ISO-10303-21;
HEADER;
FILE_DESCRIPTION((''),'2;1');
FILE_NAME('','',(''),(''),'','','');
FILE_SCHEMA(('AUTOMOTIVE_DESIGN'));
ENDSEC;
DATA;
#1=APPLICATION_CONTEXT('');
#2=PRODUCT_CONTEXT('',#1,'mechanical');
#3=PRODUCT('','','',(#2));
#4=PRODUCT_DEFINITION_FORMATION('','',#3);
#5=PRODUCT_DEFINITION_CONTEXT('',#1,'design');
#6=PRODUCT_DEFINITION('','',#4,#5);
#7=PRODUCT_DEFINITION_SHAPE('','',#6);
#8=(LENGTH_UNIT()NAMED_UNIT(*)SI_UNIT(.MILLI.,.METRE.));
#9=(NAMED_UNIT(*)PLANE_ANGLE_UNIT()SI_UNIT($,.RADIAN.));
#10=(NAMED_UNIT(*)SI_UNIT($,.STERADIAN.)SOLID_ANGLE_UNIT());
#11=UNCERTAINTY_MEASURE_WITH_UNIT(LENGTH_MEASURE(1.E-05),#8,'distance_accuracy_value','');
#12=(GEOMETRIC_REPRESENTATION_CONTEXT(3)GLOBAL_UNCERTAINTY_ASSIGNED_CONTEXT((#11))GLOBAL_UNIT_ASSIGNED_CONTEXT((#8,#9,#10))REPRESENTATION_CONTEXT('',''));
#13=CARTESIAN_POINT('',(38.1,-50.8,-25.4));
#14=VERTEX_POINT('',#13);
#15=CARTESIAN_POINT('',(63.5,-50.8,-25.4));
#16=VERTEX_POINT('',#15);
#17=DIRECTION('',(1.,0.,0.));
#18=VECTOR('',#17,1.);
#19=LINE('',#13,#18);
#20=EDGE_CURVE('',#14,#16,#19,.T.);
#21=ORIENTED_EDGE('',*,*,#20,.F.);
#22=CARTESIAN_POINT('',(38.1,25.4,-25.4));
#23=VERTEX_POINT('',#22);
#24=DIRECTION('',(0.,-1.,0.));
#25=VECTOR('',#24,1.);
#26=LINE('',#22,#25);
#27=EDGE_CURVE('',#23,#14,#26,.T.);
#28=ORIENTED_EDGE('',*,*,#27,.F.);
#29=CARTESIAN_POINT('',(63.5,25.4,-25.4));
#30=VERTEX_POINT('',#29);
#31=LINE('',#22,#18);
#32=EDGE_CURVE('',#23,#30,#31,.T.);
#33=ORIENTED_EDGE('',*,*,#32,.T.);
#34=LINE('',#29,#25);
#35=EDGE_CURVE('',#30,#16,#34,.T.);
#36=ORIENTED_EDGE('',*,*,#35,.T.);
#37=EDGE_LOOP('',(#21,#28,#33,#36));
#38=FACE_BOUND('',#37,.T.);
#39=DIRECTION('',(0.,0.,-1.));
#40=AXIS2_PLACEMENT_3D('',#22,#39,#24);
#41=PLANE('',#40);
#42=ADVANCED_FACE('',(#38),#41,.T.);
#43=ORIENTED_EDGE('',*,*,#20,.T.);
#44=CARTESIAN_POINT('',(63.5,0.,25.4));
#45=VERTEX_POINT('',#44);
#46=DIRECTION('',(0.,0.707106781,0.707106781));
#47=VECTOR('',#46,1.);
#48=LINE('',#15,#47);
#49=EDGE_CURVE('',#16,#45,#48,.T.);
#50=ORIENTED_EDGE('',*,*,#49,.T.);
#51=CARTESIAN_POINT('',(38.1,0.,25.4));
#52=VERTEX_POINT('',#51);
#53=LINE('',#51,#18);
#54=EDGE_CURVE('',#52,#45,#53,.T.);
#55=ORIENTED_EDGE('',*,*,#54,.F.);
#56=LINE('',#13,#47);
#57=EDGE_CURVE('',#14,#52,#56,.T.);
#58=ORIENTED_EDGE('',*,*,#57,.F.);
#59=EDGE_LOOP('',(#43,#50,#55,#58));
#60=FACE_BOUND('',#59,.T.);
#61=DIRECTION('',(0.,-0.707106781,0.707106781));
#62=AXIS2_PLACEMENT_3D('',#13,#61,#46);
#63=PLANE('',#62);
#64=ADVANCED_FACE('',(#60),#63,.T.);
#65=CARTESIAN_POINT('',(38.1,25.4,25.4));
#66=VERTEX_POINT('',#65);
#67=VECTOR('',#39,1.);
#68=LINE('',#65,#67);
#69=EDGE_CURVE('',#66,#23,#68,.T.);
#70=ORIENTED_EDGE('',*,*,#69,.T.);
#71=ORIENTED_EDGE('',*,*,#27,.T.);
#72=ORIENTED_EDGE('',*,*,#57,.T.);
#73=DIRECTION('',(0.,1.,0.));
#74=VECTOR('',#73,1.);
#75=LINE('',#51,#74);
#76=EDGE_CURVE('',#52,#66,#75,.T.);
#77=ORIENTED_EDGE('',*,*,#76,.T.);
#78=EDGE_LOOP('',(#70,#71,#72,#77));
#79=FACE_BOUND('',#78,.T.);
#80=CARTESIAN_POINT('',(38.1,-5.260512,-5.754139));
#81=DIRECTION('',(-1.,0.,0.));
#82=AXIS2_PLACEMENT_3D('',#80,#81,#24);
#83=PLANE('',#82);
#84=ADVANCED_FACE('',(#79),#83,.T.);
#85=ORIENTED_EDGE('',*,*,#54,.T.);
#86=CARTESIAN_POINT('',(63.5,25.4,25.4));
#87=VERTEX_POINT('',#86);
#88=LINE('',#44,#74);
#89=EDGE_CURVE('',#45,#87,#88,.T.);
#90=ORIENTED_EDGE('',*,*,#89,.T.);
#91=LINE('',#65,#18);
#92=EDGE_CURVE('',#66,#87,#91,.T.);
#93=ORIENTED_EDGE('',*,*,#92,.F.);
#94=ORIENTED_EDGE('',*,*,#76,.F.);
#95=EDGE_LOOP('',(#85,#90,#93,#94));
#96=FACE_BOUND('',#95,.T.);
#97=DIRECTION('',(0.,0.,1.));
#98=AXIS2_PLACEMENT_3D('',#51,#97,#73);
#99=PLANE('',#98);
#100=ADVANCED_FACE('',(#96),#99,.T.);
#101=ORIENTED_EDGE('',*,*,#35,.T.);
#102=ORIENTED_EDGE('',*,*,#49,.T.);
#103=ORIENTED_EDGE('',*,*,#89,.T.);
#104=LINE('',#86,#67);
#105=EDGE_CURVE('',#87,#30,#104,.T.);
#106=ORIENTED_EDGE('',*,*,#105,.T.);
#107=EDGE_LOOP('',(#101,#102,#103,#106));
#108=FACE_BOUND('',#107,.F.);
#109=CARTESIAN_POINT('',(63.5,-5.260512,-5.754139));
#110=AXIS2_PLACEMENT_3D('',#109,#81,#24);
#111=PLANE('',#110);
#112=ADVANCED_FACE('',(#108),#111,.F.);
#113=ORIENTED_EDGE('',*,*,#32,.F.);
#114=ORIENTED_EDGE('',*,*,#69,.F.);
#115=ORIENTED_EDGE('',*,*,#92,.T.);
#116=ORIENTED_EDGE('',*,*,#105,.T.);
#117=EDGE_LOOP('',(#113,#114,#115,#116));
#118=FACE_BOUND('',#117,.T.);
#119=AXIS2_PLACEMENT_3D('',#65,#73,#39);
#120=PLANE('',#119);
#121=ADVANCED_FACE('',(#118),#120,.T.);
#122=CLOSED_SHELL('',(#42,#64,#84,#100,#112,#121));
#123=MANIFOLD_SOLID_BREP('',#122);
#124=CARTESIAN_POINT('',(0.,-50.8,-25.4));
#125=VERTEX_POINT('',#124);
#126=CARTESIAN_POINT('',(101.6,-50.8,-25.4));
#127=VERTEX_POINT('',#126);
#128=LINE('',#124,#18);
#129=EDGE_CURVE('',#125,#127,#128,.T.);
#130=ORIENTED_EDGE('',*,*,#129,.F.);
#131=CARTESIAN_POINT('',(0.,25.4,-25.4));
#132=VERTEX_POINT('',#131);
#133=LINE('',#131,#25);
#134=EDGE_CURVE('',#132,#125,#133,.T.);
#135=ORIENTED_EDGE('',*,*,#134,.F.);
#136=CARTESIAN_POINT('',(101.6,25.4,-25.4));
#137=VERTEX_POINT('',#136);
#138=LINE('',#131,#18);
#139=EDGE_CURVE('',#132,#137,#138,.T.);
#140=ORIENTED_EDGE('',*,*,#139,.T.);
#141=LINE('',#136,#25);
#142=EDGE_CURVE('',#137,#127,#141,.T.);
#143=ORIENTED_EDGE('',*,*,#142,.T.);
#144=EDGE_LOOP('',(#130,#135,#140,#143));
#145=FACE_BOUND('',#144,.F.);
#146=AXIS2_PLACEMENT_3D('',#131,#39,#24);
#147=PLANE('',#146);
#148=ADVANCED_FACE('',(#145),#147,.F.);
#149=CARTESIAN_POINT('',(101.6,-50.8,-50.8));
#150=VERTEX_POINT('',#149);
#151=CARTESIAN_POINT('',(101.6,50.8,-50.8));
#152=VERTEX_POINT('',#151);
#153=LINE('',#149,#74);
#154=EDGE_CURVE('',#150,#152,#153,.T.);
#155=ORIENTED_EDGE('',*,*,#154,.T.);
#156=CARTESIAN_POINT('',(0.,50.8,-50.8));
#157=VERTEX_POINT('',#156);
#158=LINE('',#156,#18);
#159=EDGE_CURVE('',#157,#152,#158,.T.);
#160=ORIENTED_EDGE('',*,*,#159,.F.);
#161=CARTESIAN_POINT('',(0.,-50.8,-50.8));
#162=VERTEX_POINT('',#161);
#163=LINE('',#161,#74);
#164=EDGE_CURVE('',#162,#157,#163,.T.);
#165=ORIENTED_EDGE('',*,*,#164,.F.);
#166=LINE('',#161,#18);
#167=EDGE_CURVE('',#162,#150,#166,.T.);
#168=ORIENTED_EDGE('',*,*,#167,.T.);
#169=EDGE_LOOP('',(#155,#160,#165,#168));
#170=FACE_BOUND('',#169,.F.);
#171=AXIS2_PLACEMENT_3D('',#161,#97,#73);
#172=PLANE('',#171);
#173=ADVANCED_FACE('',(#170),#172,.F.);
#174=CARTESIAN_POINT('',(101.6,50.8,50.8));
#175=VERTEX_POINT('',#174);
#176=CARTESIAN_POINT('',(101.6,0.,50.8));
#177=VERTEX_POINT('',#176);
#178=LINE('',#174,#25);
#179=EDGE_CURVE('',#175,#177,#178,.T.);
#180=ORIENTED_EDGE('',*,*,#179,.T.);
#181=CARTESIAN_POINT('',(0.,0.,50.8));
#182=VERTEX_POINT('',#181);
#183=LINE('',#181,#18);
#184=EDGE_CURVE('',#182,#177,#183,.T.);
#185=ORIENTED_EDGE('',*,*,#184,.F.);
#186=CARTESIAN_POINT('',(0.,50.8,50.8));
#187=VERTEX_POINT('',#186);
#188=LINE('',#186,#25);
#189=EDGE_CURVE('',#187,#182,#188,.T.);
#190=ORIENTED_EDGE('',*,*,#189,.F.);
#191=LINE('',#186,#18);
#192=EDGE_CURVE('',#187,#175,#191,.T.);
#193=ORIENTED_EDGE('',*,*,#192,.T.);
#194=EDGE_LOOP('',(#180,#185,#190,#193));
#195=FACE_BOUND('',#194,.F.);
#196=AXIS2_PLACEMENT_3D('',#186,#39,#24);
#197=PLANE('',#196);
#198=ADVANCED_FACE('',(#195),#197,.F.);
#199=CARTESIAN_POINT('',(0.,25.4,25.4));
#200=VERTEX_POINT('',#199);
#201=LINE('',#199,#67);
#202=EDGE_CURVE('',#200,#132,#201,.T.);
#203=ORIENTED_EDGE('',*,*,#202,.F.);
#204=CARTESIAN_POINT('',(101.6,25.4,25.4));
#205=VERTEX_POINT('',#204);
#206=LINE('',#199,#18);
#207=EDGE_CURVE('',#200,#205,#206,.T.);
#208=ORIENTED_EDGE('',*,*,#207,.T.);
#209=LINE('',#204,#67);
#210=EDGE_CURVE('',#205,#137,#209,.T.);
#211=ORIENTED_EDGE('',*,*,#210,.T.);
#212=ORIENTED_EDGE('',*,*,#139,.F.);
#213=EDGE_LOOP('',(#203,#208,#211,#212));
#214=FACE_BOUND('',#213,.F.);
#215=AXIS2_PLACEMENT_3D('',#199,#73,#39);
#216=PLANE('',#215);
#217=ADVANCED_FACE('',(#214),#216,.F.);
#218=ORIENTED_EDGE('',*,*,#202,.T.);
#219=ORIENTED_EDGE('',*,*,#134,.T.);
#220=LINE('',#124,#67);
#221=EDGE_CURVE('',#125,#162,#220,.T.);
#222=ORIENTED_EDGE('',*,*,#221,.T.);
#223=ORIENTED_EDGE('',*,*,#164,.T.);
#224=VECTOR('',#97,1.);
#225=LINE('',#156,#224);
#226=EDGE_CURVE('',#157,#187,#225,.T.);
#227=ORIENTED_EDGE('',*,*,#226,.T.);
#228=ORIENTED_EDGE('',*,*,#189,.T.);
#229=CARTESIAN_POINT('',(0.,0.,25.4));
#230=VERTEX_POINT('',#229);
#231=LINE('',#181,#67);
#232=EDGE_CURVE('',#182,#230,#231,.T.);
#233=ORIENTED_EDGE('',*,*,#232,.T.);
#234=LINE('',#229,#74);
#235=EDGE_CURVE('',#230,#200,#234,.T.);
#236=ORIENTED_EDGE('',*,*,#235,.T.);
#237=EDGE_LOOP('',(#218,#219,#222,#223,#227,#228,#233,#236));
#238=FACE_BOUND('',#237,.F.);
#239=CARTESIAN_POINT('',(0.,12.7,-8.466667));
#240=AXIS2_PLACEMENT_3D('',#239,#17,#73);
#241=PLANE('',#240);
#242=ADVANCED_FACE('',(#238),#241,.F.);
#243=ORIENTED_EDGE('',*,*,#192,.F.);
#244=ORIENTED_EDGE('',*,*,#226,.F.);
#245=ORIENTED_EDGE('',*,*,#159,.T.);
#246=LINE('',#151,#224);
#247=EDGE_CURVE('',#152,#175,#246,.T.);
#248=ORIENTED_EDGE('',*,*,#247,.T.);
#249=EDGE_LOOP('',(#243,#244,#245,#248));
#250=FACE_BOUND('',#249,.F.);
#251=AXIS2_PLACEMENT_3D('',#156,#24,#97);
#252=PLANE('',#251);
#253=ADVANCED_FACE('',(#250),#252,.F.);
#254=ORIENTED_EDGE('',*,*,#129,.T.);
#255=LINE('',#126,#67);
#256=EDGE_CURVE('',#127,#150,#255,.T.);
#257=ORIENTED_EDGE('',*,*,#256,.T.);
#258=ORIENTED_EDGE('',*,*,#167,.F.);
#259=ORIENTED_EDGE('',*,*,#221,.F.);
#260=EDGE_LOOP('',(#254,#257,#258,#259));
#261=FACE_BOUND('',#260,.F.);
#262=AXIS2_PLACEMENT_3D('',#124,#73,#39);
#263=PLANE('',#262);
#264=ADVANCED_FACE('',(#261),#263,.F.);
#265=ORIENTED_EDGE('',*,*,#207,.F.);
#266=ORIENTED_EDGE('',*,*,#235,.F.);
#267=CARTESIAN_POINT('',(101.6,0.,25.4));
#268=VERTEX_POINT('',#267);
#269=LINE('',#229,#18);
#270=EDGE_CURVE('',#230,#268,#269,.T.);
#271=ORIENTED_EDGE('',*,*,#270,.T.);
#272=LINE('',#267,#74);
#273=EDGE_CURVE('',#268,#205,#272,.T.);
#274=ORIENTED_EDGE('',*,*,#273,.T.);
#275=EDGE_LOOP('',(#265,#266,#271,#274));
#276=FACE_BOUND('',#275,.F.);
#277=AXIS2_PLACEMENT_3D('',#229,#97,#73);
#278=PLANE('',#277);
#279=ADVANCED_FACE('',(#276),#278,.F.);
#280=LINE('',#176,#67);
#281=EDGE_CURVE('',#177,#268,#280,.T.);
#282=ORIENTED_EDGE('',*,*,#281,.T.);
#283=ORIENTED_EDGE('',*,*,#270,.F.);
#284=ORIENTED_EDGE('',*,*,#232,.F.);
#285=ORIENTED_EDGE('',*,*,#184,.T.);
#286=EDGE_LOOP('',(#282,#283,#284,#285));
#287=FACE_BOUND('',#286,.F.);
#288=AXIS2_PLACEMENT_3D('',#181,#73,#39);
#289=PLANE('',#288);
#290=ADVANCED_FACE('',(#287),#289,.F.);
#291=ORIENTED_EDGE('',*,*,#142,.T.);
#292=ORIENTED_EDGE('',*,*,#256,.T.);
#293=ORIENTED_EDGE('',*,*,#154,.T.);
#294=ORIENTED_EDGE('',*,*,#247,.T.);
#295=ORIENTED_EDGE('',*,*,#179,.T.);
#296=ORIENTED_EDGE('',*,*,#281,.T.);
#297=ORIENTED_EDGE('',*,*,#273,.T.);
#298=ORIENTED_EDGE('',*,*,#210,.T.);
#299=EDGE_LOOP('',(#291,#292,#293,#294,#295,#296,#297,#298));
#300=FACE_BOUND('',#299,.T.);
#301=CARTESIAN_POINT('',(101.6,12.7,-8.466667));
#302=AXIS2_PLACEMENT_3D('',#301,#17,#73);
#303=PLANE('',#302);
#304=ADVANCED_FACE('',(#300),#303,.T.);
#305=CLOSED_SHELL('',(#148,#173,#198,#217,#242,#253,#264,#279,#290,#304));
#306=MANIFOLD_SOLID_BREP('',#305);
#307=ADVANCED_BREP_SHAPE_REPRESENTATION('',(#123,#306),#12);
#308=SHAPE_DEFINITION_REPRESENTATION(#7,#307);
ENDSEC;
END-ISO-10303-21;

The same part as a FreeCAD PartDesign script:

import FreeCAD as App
import Part
import Sketcher
from FreeCAD import Vector
Q = App.Units.Quantity


def add_polygon(sketch, points):
    """Adds a closed chain of lines whose ends are joined by coincident constraints."""
    first, n = sketch.GeometryCount, len(points)
    for a, b in zip(points, points[1:] + points[:1]):
        sketch.addGeometry(Part.LineSegment(App.Vector(*a, 0), App.Vector(*b, 0)), False)
    for i in range(n):
        sketch.addConstraint(Sketcher.Constraint("Coincident", first + i, 2, first + (i + 1) % n, 1))

doc = App.newDocument("Part")
body = doc.addObject("PartDesign::Body", "Body")

# Sketch on YZ plane
sketch1 = doc.addObject("Sketcher::SketchObject", "Sketch")
body.addObject(sketch1)
sketch1.AttachmentSupport = (doc.YZ_Plane, [""])
sketch1.MapMode = "FlatFace"
add_polygon(sketch1, [(25, -25), (-51, -25), (-51, -51), (51, -51), (51, 51), (0, 51), (0, 25), (25, 25)])  # lines 0-7
sketch1.addConstraint([
    Sketcher.Constraint("Horizontal", 0),
    Sketcher.Constraint("Vertical", 1),
    Sketcher.Constraint("Horizontal", 2),
    Sketcher.Constraint("Vertical", 3),
    Sketcher.Constraint("Horizontal", 4),
    Sketcher.Constraint("Vertical", 5),
    Sketcher.Constraint("Horizontal", 6),
    Sketcher.Constraint("Vertical", 7),
    Sketcher.Constraint("Symmetric", 1, 2, 3, 2, -1, 1),
    Sketcher.Constraint("PointOnObject", 4, 2, -2),
    Sketcher.Constraint("Equal", 6, 1),
    Sketcher.Constraint("Equal", 2, 3),
    Sketcher.Constraint("Equal", 1, 5),
    Sketcher.Constraint("Equal", 4, 7),
    Sketcher.Constraint("DistanceX", 0, 2, 0, 1, Q("3 in")),
])
pad1 = doc.addObject("PartDesign::Pad", "Pad")
body.addObject(pad1)
pad1.Profile = sketch1
pad1.Length = Q("4 in")
body2 = doc.addObject("PartDesign::Body", "Body001")

# Sketch on YZ plane
sketch2 = doc.addObject("Sketcher::SketchObject", "Sketch001")
body2.addObject(sketch2)
sketch2.AttachmentSupport = (doc.getObject("YZ_Plane001"), [""])
sketch2.MapMode = "FlatFace"
add_polygon(sketch2, [(0, 25), (25, 25), (25, -25), (-51, -25)])  # lines 0-3
sketch2.addConstraint([
    Sketcher.Constraint("Horizontal", 0),
    Sketcher.Constraint("Vertical", 1),
    Sketcher.Constraint("Horizontal", 2),
    Sketcher.Constraint("PointOnObject", 3, 2, -2),
    Sketcher.Constraint("DistanceX", 0, 1, 0, 2, Q("1 in")),
    Sketcher.Constraint("DistanceX", 2, 2, 2, 1, Q("3 in")),
    Sketcher.Constraint("DistanceY", 1, 2, 1, 1, Q("2 in")),
    Sketcher.Constraint("DistanceY", -1, 1, 0, 2, Q("1 in")),
])
pad2 = doc.addObject("PartDesign::Pad", "Pad001")
body2.addObject(pad2)
pad2.Profile = sketch2
pad2.Length = Q("1 in")
body3 = doc.addObject("PartDesign::Body", "Body002")
doc.recompute()

body2.Placement = App.Placement(Vector(38.1, 0, 0), App.Rotation(Vector(0, 0, 1), 0))
boolean = doc.addObject("PartDesign::Boolean", "Boolean")
body3.addObject(boolean)
boolean.Type = "Fuse"
boolean.addObjects([body2])

doc.recompute()
